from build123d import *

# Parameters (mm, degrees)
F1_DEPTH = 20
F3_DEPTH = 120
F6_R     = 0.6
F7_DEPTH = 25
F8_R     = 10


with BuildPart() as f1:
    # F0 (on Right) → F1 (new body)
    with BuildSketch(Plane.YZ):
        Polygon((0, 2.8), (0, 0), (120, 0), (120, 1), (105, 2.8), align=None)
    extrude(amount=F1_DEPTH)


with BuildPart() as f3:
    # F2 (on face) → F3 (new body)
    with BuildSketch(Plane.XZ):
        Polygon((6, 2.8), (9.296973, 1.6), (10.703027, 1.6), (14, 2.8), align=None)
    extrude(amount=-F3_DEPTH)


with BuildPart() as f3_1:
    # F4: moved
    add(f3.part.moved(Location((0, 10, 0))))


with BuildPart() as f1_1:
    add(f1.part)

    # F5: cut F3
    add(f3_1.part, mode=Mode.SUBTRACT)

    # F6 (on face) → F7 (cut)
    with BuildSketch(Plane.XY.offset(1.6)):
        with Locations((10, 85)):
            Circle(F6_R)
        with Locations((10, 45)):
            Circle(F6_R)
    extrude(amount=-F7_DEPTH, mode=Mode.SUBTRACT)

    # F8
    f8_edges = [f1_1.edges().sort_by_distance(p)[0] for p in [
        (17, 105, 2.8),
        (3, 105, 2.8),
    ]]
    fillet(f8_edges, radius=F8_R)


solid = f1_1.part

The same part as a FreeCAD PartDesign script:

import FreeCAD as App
import Part
import Sketcher

V = App.Vector
Q = App.Units.Quantity


def edges_at(feature, points):
    """Names of the edges that pass closest to the given points."""
    edges = feature.Shape.Edges
    near = lambda p: min(range(len(edges)), key=lambda i: edges[i].distToShape(Part.Vertex(*p))[0])
    return sorted({f"Edge{near(p) + 1}" for p in points})


def add_polygon(sketch, points):
    """Adds a closed chain of lines whose ends are joined by coincident constraints."""
    first, n = sketch.GeometryCount, len(points)
    for a, b in zip(points, points[1:] + points[:1]):
        sketch.addGeometry(Part.LineSegment(App.Vector(*a, 0), App.Vector(*b, 0)), False)
    for i in range(n):
        sketch.addConstraint(Sketcher.Constraint("Coincident", first + i, 2, first + (i + 1) % n, 1))

doc = App.newDocument("Part")
body = doc.addObject("PartDesign::Body", "Body")

sketch1 = doc.addObject("Sketcher::SketchObject", "Sketch")
body.addObject(sketch1)
sketch1.AttachmentSupport = (doc.YZ_Plane, [""])
sketch1.MapMode = "FlatFace"
add_polygon(sketch1, [(0, 2.8), (0, 0), (120, 0), (120, 1), (105, 2.8)])
sketch1.addConstraint([
    Sketcher.Constraint("Vertical", 0),
    Sketcher.Constraint("Horizontal", 1),
    Sketcher.Constraint("Vertical", 2),
    Sketcher.Constraint("Horizontal", 4),
    Sketcher.Constraint("Coincident", 0, 2, -1, 1),
    Sketcher.Constraint("DistanceX", 1, 1, 1, 2, 120.0),
    Sketcher.Constraint("DistanceX", 4, 2, 4, 1, 105.0),
    Sketcher.Constraint("DistanceY", 2, 1, 2, 2, 1.0),
    Sketcher.Constraint("DistanceY", 0, 2, 0, 1, 2.8),
])
pad1 = doc.addObject("PartDesign::Pad", "Pad")
body.addObject(pad1)
pad1.Profile = sketch1
pad1.Length = 20
body2 = doc.addObject("PartDesign::Body", "Body001")

sketch2 = doc.addObject("Sketcher::SketchObject", "Sketch001")
body2.addObject(sketch2)
sketch2.AttachmentSupport = (doc.getObject("XZ_Plane001"), [""])
sketch2.MapMode = "FlatFace"
add_polygon(sketch2, [(6, 2.8), (9.3, 1.6), (10.7, 1.6), (14, 2.8)])
sketch2.addConstraint([
    Sketcher.Constraint("Horizontal", 1),
    Sketcher.Constraint("Horizontal", 3),
    Sketcher.Constraint("Equal", 0, 2),
    Sketcher.Constraint("DistanceX", 3, 2, 3, 1, 8.0),
    Sketcher.Constraint("Angle", 0, Q("-19.999999 deg")),
    Sketcher.Constraint("DistanceX", -1, 1, 2, 2, 14.0),
    Sketcher.Constraint("DistanceY", -1, 1, 0, 2, 1.6),
    Sketcher.Constraint("DistanceY", -1, 1, 2, 2, 2.8),
])
pad2 = doc.addObject("PartDesign::Pad", "Pad001")
body2.addObject(pad2)
pad2.Profile = sketch2
pad2.Length = 120
pad2.Reversed = True
body3 = doc.addObject("PartDesign::Body", "Body002")
doc.recompute()

body2.Placement = App.Placement(V(0, 10, 0), App.Rotation(V(0, 0, 1), 0))
boolean = doc.addObject("PartDesign::Boolean", "Boolean")
body3.addObject(boolean)
boolean.Type = "Fuse"
boolean.addObjects([body2])
doc.recompute()

boolean2 = doc.addObject("PartDesign::Boolean", "Boolean001")
body.addObject(boolean2)
boolean2.Type = "Cut"
boolean2.addObjects([body3])

sketch3 = doc.addObject("Sketcher::SketchObject", "Sketch002")
body.addObject(sketch3)
sketch3.AttachmentSupport = (doc.XY_Plane, [""])
sketch3.MapMode = "FlatFace"
sketch3.AttachmentOffset = App.Placement(V(0, 0, 1.6), App.Rotation())
sketch3.addGeometry([
    Part.Circle(V(10, 85, 0), V(0, 0, 1), 0.6),
    Part.Circle(V(10, 45, 0), V(0, 0, 1), 0.6),
], False)
sketch3.addConstraint([
    Sketcher.Constraint("Equal", 0, 1),
    Sketcher.Constraint("Vertical", 0, 3, 1, 3),
    Sketcher.Constraint("Diameter", 0, 1.2),
    Sketcher.Constraint("DistanceX", -1, 1, 0, 3, 10.0),
    Sketcher.Constraint("DistanceY", -1, 1, 0, 3, 85.0),
    Sketcher.Constraint("DistanceY", -1, 1, 1, 3, 45.0),
])
pocket1 = doc.addObject("PartDesign::Pocket", "Pocket")
body.addObject(pocket1)
pocket1.Profile = sketch3
pocket1.Length = 25
doc.recompute()

fillet = doc.addObject("PartDesign::Fillet", "Fillet")
body.addObject(fillet)
fillet.Base = (pocket1, edges_at(pocket1, [(17, 105, 2.8), (3, 105, 2.8)]))
fillet.Radius = 10

doc.recompute()
